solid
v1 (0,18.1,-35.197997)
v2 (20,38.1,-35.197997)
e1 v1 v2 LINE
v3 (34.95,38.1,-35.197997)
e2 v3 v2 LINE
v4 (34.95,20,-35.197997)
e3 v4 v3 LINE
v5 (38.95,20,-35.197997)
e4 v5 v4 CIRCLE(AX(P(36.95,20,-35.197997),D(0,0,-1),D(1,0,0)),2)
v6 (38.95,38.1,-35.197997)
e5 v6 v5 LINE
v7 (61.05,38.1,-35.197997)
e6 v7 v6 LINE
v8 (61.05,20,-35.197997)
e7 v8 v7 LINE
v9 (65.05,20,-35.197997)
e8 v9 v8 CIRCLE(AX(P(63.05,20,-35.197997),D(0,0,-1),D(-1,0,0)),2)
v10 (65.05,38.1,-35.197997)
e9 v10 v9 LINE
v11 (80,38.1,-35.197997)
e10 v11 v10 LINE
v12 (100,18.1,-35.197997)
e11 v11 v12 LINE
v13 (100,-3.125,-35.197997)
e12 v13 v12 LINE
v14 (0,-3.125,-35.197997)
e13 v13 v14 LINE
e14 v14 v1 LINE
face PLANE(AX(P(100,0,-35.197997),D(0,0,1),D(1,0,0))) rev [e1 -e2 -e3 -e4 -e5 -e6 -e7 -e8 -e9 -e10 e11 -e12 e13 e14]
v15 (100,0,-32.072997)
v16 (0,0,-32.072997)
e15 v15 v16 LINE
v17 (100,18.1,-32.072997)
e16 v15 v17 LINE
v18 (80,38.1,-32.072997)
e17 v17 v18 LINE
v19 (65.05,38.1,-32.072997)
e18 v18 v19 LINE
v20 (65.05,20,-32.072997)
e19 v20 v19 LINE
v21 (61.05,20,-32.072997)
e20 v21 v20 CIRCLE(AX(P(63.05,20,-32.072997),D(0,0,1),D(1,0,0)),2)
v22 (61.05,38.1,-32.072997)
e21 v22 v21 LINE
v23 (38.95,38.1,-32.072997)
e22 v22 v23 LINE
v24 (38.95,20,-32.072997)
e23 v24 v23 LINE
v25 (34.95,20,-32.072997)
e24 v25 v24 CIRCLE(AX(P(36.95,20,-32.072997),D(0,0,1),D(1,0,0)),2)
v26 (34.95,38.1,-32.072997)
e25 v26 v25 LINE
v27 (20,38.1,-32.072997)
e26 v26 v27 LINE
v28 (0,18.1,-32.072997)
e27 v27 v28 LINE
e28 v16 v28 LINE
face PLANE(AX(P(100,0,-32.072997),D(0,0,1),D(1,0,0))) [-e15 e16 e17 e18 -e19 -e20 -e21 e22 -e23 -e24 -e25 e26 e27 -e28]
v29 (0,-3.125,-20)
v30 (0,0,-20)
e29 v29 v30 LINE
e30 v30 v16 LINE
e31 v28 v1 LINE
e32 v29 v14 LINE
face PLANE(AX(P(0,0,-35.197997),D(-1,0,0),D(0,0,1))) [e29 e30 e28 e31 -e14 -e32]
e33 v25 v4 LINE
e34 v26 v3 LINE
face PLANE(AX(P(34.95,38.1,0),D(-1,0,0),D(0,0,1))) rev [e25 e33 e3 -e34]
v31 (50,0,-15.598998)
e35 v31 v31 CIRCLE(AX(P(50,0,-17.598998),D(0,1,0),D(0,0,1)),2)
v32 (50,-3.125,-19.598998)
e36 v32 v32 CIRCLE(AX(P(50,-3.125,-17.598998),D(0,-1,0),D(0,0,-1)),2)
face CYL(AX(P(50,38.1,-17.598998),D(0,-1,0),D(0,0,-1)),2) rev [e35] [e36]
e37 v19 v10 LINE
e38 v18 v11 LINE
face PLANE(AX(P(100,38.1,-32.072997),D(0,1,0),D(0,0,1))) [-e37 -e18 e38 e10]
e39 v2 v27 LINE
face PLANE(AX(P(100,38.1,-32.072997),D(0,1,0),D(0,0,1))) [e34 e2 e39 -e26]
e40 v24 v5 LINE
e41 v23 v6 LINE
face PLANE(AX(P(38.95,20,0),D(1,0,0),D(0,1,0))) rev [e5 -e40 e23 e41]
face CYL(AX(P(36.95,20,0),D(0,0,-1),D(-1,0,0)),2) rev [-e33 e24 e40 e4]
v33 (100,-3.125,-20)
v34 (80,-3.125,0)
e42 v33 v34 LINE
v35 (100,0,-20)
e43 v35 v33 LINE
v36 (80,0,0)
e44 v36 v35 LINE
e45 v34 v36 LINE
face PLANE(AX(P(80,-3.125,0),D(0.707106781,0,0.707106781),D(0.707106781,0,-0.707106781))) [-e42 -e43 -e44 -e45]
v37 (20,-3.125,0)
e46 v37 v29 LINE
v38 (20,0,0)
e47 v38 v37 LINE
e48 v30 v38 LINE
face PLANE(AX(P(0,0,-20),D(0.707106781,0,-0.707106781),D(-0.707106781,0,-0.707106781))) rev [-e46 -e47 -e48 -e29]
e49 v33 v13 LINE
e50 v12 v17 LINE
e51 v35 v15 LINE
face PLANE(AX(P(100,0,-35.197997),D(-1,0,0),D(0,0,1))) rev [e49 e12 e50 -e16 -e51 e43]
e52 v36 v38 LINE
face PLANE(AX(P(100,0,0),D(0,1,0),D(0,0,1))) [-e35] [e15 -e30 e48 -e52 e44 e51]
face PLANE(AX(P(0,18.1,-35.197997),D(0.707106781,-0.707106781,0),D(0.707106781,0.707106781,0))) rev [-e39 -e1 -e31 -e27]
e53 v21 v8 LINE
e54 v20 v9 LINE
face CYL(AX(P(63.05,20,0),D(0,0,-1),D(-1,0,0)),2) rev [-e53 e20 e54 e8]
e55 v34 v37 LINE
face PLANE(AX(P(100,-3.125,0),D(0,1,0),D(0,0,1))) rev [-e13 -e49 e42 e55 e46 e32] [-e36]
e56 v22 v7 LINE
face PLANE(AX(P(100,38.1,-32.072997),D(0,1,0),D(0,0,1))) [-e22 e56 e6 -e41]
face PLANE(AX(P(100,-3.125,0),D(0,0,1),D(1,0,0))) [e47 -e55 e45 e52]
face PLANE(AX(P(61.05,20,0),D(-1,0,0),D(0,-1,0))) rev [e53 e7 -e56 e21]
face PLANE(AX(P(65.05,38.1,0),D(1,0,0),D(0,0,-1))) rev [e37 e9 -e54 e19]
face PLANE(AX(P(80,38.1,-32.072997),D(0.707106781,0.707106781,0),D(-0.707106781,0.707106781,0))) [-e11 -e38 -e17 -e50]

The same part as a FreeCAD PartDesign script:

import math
import FreeCAD as App
import Part
import Sketcher

V = App.Vector


def edges_at(feature, points):
    """Names of the edges that pass closest to the given points."""
    edges = feature.Shape.Edges
    near = lambda p: min(range(len(edges)), key=lambda i: edges[i].distToShape(Part.Vertex(*p))[0])
    return sorted({f"Edge{near(p) + 1}" for p in points})

doc = App.newDocument("Part")
body = doc.addObject("PartDesign::Body", "Body")

sketch1 = doc.addObject("Sketcher::SketchObject", "Sketch")
body.addObject(sketch1)
sketch1.AttachmentSupport = (doc.YZ_Plane, [""])
sketch1.MapMode = "FlatFace"
sketch1.addGeometry([
    Part.LineSegment(V(0, -32.1, 0), V(0, 0, 0)),
    Part.LineSegment(V(0, 0, 0), V(-3.1, 0, 0)),
    Part.LineSegment(V(-3.1, 0, 0), V(-3.1, -35.2, 0)),
    Part.LineSegment(V(-3.1, -35.2, 0), V(38.1, -35.2, 0)),
    Part.LineSegment(V(38.1, -35.2, 0), V(38.1, -32.1, 0)),
    Part.LineSegment(V(38.1, -32.1, 0), V(0, -32.1, 0)),
], False)
sketch1.addConstraint([
    Sketcher.Constraint("Coincident", 0, 2, 1, 1),
    Sketcher.Constraint("Coincident", 1, 2, 2, 1),
    Sketcher.Constraint("Coincident", 2, 2, 3, 1),
    Sketcher.Constraint("Coincident", 3, 2, 4, 1),
    Sketcher.Constraint("Coincident", 4, 2, 5, 1),
    Sketcher.Constraint("Coincident", 5, 2, 0, 1),
    Sketcher.Constraint("Vertical", 0),
    Sketcher.Constraint("Horizontal", 1),
    Sketcher.Constraint("Vertical", 2),
    Sketcher.Constraint("Horizontal", 3),
    Sketcher.Constraint("Vertical", 4),
    Sketcher.Constraint("Horizontal", 5),
    Sketcher.Constraint("Coincident", 0, 2, -1, 1),
    Sketcher.Constraint("Equal", 1, 4),
    Sketcher.Constraint("DistanceX", 5, 2, 5, 1, 38.1),
    Sketcher.Constraint("DistanceX", 1, 2, 1, 1, 3.125),
    Sketcher.Constraint("DistanceY", 0, 1, 0, 2, 32.072997),
])
pad1 = doc.addObject("PartDesign::Pad", "Pad")
body.addObject(pad1)
pad1.Profile = sketch1
pad1.Length = 100

sketch2 = doc.addObject("Sketcher::SketchObject", "Sketch001")
body.addObject(sketch2)
sketch2.AttachmentSupport = (doc.XY_Plane, [""])
sketch2.MapMode = "FlatFace"
sketch2.AttachmentOffset = App.Placement(V(0, 0, -35.197997), App.Rotation())
sketch2.addGeometry([
    Part.LineSegment(V(61, 20, 0), V(61, 38.1, 0)),
    Part.LineSegment(V(61, 38.1, 0), V(65, 38.1, 0)),
    Part.LineSegment(V(65, 38.1, 0), V(65, 20, 0)),
    Part.ArcOfCircle(Part.Circle(V(63, 20, 0), V(0, 0, 1), 2), math.radians(180), math.radians(360)),
    Part.LineSegment(V(39, 38.1, 0), V(39, 20, 0)),
    Part.ArcOfCircle(Part.Circle(V(37, 20, 0), V(0, 0, 1), 2), math.radians(180), math.radians(360)),
    Part.LineSegment(V(35, 20, 0), V(35, 38.1, 0)),
    Part.LineSegment(V(35, 38.1, 0), V(39, 38.1, 0)),
], False)
sketch2.addConstraint([
    Sketcher.Constraint("Coincident", 0, 2, 1, 1),
    Sketcher.Constraint("Coincident", 1, 2, 2, 1),
    Sketcher.Constraint("Tangent", 2, 2, 3, 2),
    Sketcher.Constraint("Tangent", 3, 1, 0, 1),
    Sketcher.Constraint("Tangent", 4, 2, 5, 2),
    Sketcher.Constraint("Tangent", 5, 1, 6, 1),
    Sketcher.Constraint("Coincident", 6, 2, 7, 1),
    Sketcher.Constraint("Coincident", 7, 2, 4, 1),
    Sketcher.Constraint("Vertical", 0),
    Sketcher.Constraint("Horizontal", 1),
    Sketcher.Constraint("Vertical", 2),
    Sketcher.Constraint("Vertical", 4),
    Sketcher.Constraint("Vertical", 6),
    Sketcher.Constraint("Horizontal", 7),
    Sketcher.Constraint("Equal", 3, 5),
    Sketcher.Constraint("Horizontal", 3, 3, 5, 3),
    Sketcher.Constraint("Horizontal", 1, 2, 6, 2),
    Sketcher.Constraint("Radius", 3, 2.0),
    Sketcher.Constraint("DistanceY", 0, 1, 0, 2, 18.1),
    Sketcher.Constraint("DistanceY", -1, 1, 3, 3, 20.0),
    Sketcher.Constraint("DistanceX", 5, 3, 3, 3, 26.1),
    Sketcher.Constraint("DistanceX", -1, 1, 3, 3, 63.05),
])
pocket1 = doc.addObject("PartDesign::Pocket", "Pocket")
body.addObject(pocket1)
pocket1.Profile = sketch2
pocket1.Type = "ThroughAll"
pocket1.Reversed = True
doc.recompute()

chamfer = doc.addObject("PartDesign::Chamfer", "Chamfer")
body.addObject(chamfer)
chamfer.Base = (pocket1, edges_at(pocket1, [(0, 38.1, -33.635), (100, 38.1, -33.635)]))
chamfer.Size = 20
doc.recompute()

chamfer2 = doc.addObject("PartDesign::Chamfer", "Chamfer001")
body.addObject(chamfer2)
chamfer2.Base = (chamfer, edges_at(chamfer, [(100, -1.562, 0), (0, -1.562, 0)]))
chamfer2.Size = 20

sketch3 = doc.addObject("Sketcher::SketchObject", "Sketch002")
body.addObject(sketch3)
sketch3.AttachmentSupport = (doc.XZ_Plane, [""])
sketch3.MapMode = "FlatFace"
sketch3.AttachmentOffset = App.Placement(V(0, 0, 3.125), App.Rotation())
sketch3.addGeometry(Part.Circle(V(50, -17.6, 0), V(0, 0, 1), 2), False)
sketch3.addConstraint([
    Sketcher.Constraint("Diameter", 0, 4.0),
    Sketcher.Constraint("DistanceX", -1, 1, 0, 3, 50.0),
    Sketcher.Constraint("DistanceY", 0, 3, -1, 1, 17.598998),
])
pocket2 = doc.addObject("PartDesign::Pocket", "Pocket001")
body.addObject(pocket2)
pocket2.Profile = sketch3
pocket2.Type = "ThroughAll"

doc.recompute()
